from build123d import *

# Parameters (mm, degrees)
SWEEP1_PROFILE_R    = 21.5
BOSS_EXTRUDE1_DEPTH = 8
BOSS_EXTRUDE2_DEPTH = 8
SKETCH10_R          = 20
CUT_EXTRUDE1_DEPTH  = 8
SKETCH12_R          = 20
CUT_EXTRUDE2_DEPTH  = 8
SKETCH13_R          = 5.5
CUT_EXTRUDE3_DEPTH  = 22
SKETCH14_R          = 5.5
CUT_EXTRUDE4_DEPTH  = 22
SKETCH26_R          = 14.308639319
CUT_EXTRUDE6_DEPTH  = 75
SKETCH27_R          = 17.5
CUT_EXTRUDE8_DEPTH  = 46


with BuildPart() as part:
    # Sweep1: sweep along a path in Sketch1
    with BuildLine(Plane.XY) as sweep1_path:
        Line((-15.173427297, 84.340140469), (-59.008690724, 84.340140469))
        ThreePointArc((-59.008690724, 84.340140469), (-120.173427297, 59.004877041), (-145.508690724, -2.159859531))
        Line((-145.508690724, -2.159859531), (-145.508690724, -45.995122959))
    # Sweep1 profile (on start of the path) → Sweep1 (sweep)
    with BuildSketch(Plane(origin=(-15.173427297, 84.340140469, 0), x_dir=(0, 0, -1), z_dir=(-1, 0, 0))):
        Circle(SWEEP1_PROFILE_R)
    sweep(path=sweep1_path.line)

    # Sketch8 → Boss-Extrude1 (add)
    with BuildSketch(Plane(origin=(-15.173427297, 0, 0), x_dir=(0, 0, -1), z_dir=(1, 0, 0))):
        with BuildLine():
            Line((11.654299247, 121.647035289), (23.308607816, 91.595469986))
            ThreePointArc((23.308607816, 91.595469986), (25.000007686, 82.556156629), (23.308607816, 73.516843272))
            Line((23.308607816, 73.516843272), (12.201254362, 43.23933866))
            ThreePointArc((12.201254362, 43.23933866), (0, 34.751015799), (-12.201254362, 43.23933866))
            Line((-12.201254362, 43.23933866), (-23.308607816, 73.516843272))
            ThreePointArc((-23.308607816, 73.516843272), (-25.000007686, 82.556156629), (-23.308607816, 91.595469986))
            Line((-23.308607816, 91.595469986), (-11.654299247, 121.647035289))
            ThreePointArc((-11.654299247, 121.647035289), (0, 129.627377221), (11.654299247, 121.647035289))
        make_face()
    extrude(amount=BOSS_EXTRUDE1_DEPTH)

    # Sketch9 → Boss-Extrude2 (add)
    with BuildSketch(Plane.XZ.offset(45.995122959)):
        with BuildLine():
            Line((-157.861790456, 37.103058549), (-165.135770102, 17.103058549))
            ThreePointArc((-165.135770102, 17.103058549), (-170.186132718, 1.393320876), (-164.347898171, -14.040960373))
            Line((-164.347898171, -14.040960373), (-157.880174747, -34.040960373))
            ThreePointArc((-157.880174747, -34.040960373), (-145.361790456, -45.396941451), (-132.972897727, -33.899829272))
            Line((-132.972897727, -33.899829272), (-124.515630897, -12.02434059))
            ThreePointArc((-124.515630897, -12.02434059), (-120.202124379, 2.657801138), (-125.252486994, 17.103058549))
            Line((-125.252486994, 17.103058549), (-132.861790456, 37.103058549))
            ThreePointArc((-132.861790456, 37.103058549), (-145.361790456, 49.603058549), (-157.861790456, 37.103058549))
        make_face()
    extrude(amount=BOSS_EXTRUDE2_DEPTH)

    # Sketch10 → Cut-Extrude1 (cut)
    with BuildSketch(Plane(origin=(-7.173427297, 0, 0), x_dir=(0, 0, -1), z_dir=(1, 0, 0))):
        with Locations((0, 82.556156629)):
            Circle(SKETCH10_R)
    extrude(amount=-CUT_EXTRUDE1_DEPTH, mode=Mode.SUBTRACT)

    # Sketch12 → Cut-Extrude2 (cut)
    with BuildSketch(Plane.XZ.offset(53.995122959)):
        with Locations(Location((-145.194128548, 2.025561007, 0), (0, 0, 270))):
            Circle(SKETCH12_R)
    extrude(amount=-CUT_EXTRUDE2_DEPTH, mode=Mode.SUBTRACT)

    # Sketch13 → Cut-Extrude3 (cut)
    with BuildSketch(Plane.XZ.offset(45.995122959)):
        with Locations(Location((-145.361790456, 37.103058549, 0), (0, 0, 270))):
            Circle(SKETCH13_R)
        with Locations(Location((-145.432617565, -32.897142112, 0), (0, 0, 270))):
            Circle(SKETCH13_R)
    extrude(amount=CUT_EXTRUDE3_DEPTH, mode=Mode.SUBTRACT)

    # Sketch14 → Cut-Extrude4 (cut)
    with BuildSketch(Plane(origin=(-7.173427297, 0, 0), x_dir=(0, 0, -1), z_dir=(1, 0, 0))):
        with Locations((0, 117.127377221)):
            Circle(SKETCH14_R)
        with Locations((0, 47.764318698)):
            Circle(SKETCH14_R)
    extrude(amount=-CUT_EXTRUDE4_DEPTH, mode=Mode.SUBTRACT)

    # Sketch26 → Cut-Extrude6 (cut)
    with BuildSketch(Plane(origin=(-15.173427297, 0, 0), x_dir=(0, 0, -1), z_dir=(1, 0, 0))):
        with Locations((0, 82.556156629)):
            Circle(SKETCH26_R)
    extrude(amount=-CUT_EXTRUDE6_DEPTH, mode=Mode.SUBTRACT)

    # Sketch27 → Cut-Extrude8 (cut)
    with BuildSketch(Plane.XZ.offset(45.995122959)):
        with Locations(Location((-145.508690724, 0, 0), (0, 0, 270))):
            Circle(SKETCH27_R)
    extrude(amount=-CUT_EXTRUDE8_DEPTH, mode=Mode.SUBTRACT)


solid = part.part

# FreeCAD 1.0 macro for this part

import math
import FreeCAD as App
import Part
import Sketcher
from FreeCAD import Vector
Q = App.Units.Quantity

doc = App.newDocument("Part")
params = doc.addObject("Spreadsheet::Sheet", "Params")
for row, (alias, value) in enumerate([
    ("sketch1_diameter", "43 mm"),
    ("sketch2_radius", "86.5 mm"),
    ("sketch3_radius", "12.5 mm"),
    ("pad1_length", "8 mm"),
    ("sketch4_radius", "25 mm"),
    ("sketch4_radius2", "12.5 mm"),
    ("pad2_length", "8 mm"),
    ("sketch5_diameter", "40 mm"),
    ("pocket1_length", "8 mm"),
    ("sketch6_diameter", "40 mm"),
    ("pocket2_length", "8 mm"),
    ("sketch7_diameter", "11 mm"),
    ("pocket3_length", "22 mm"),
    ("sketch8_diameter", "11 mm"),
    ("pocket4_length", "22 mm"),
    ("pocket5_length", "75 mm"),
    ("sketch10_diameter", "35 mm"),
    ("pocket6_length", "46 mm"),
], start=1):
    params.set(f"A{row}", alias)
    params.set(f"B{row}", "=" + value)
    params.setAlias(f"B{row}", alias)

body = doc.addObject("PartDesign::Body", "Body")

# Sketch on YZ plane
sketch1 = doc.addObject("Sketcher::SketchObject", "Sketch")
body.addObject(sketch1)
sketch1.AttachmentSupport = (doc.YZ_Plane, [""])
sketch1.MapMode = "FlatFace"
sketch1.AttachmentOffset = App.Placement(Vector(0, 0, -15.173427), App.Rotation())
sketch1.addGeometry(Part.Circle(Vector(84, 0, 0), Vector(0, 0, 1), 22), False)
sketch1.addConstraint([
    Sketcher.Constraint("PointOnObject", 0, 3, -1),
    Sketcher.Constraint("Diameter", 0, Q("43 mm")),
    Sketcher.Constraint("DistanceX", -1, 1, 0, 3, Q("84.34014 mm")),
])
sketch1.setExpression("Constraints[1]", "Params.sketch1_diameter")

# Sketch on XY plane
sketch2 = doc.addObject("Sketcher::SketchObject", "Sketch001")
body.addObject(sketch2)
sketch2.AttachmentSupport = (doc.XY_Plane, [""])
sketch2.MapMode = "FlatFace"
sketch2.addGeometry([
    Part.LineSegment(Vector(-15, 84, 0), Vector(-59, 84, 0)),
    Part.ArcOfCircle(Part.Circle(Vector(-59, -2, 0), Vector(0, 0, 1), 86), math.radians(90), math.radians(180)),
    Part.LineSegment(Vector(-146, -2, 0), Vector(-146, -46, 0)),
], False)
sketch2.addConstraint([
    Sketcher.Constraint("Tangent", 0, 2, 1, 1),
    Sketcher.Constraint("Tangent", 1, 2, 2, 1),
    Sketcher.Constraint("Horizontal", 0),
    Sketcher.Constraint("Vertical", 2),
    Sketcher.Constraint("Equal", 0, 2),
    Sketcher.Constraint("Radius", 1, Q("86.5 mm")),
    Sketcher.Constraint("DistanceX", 0, 2, 0, 1, Q("43.835263 mm")),
    Sketcher.Constraint("DistanceX", 1, 3, -1, 1, Q("59.008691 mm")),
    Sketcher.Constraint("DistanceY", 1, 3, -1, 1, Q("2.15986 mm")),
])
sketch2.setExpression("Constraints[5]", "Params.sketch2_radius")
doc.recompute()

additivepipe = doc.addObject("PartDesign::AdditivePipe", "AdditivePipe")
body.addObject(additivepipe)
additivepipe.Profile = sketch1
additivepipe.Spine = (sketch2, ["Edge1", "Edge2", "Edge3"])

# Sketch on YZ plane
sketch3 = doc.addObject("Sketcher::SketchObject", "Sketch002")
body.addObject(sketch3)
sketch3.AttachmentSupport = (doc.YZ_Plane, [""])
sketch3.MapMode = "FlatFace"
sketch3.AttachmentOffset = App.Placement(Vector(0, 0, -15.173427), App.Rotation())
sketch3.addGeometry([
    Part.LineSegment(Vector(92, -23, 0), Vector(122, -12, 0)),  # 0
    Part.ArcOfCircle(Part.Circle(Vector(117, 0, 0), Vector(0, 0, 1), 12), math.radians(-69), math.radians(69)),  # 1
    Part.LineSegment(Vector(122, 12, 0), Vector(92, 23, 0)),  # 2
    Part.ArcOfCircle(Part.Circle(Vector(83, 0, 0), Vector(0, 0, 1), 25), math.radians(69), math.radians(111)),  # 3
    Part.LineSegment(Vector(74, 23, 0), Vector(43, 12, 0)),  # 4
    Part.ArcOfCircle(Part.Circle(Vector(48, 0, 0), Vector(0, 0, 1), 13), math.radians(110), math.radians(250)),  # 5
    Part.LineSegment(Vector(43, -12, 0), Vector(74, -23, 0)),  # 6
    Part.ArcOfCircle(Part.Circle(Vector(83, 0, 0), Vector(0, 0, 1), 25), math.radians(-111), math.radians(-69)),  # 7
], False)
sketch3.addConstraint([
    Sketcher.Constraint("Tangent", 0, 2, 1, 1),
    Sketcher.Constraint("Tangent", 1, 2, 2, 1),
    Sketcher.Constraint("Tangent", 2, 2, 3, 1),
    Sketcher.Constraint("Coincident", 3, 2, 4, 1),
    Sketcher.Constraint("Coincident", 4, 2, 5, 1),
    Sketcher.Constraint("Coincident", 5, 2, 6, 1),
    Sketcher.Constraint("Coincident", 6, 2, 7, 1),
    Sketcher.Constraint("Tangent", 7, 2, 0, 1),
    Sketcher.Constraint("Coincident", 7, 3, 3, 3),
    Sketcher.Constraint("Equal", 3, 7),
    Sketcher.Constraint("Symmetric", 0, 2, 1, 2, -1),
    Sketcher.Constraint("Symmetric", 4, 2, 5, 2, -1),
    Sketcher.Constraint("Horizontal", 2, 2, 3, 2),
    Sketcher.Constraint("Horizontal", 6, 2, 7, 2),
    Sketcher.Constraint("Radius", 1, Q("12.5 mm")),
    Sketcher.Constraint("Radius", 3, Q("25.000008 mm")),
    Sketcher.Constraint("Radius", 5, Q("13.013303 mm")),
    Sketcher.Constraint("DistanceY", 0, 2, -1, 1, Q("11.654299 mm")),
    Sketcher.Constraint("Distance", 4, Q("32.25059 mm")),
    Sketcher.Constraint("DistanceX", -1, 1, 5, 3, Q("47.764319 mm")),
    Sketcher.Constraint("DistanceX", -1, 1, 2, 2, Q("91.59547 mm")),
])
sketch3.setExpression("Constraints[14]", "Params.sketch3_radius")
pad1 = doc.addObject("PartDesign::Pad", "Pad")
body.addObject(pad1)
pad1.Profile = sketch3
pad1.setExpression("Length", "Params.pad1_length")

# Sketch on XZ plane
sketch4 = doc.addObject("Sketcher::SketchObject", "Sketch003")
body.addObject(sketch4)
sketch4.AttachmentSupport = (doc.XZ_Plane, [""])
sketch4.MapMode = "FlatFace"
sketch4.AttachmentOffset = App.Placement(Vector(0, 0, 45.995123), App.Rotation())
sketch4.addGeometry([
    Part.LineSegment(Vector(-158, 37, 0), Vector(-165, 17, 0)),  # 0
    Part.ArcOfCircle(Part.Circle(Vector(-145, 2, 0), Vector(0, 0, 1), 25), math.radians(143), math.radians(220)),  # 1
    Part.LineSegment(Vector(-164, -14, 0), Vector(-158, -34, 0)),  # 2
    Part.ArcOfCircle(Part.Circle(Vector(-145, -33, 0), Vector(0, 0, 1), 12), math.radians(-175), math.radians(-5)),  # 3
    Part.LineSegment(Vector(-133, -34, 0), Vector(-125, -12, 0)),  # 4
    Part.ArcOfCircle(Part.Circle(Vector(-145, 2, 0), Vector(0, 0, 1), 25), math.radians(-34), math.radians(37)),  # 5
    Part.LineSegment(Vector(-125, 17, 0), Vector(-133, 37, 0)),  # 6
    Part.ArcOfCircle(Part.Circle(Vector(-145, 37, 0), Vector(0, 0, 1), 12), math.radians(0), math.radians(180)),  # 7
], False)
sketch4.addConstraint([
    Sketcher.Constraint("Coincident", 0, 2, 1, 1),
    Sketcher.Constraint("Coincident", 1, 2, 2, 1),
    Sketcher.Constraint("Coincident", 2, 2, 3, 1),
    Sketcher.Constraint("Coincident", 3, 2, 4, 1),
    Sketcher.Constraint("Coincident", 4, 2, 5, 1),
    Sketcher.Constraint("Coincident", 5, 2, 6, 1),
    Sketcher.Constraint("Coincident", 6, 2, 7, 1),
    Sketcher.Constraint("Coincident", 7, 2, 0, 1),
    Sketcher.Constraint("Coincident", 5, 3, 1, 3),
    Sketcher.Constraint("Equal", 1, 5),
    Sketcher.Constraint("Equal", 3, 7),
    Sketcher.Constraint("Horizontal", 0, 2, 5, 2),
    Sketcher.Constraint("Horizontal", 7, 3, 6, 2),
    Sketcher.Constraint("Horizontal", 6, 2, 7, 2),
    Sketcher.Constraint("Radius", 1, Q("25 mm")),
    Sketcher.Constraint("Radius", 3, Q("12.5 mm")),
    Sketcher.Constraint("DistanceY", 0, 2, 7, 3, Q("20 mm")),
    Sketcher.Constraint("DistanceY", 2, 2, 1, 2, Q("20 mm")),
    Sketcher.Constraint("DistanceX", 1, 2, 3, 2, Q("31.375 mm")),
    Sketcher.Constraint("Distance", 0, Q("21.281701 mm")),
    Sketcher.Constraint("DistanceX", 1, 2, -1, 1, Q("164.347898 mm")),
    Sketcher.Constraint("DistanceY", 3, 3, 7, 3, Q("70.000201 mm")),
    Sketcher.Constraint("DistanceY", 4, 2, 1, 3, Q("14.049902 mm")),
    Sketcher.Constraint("DistanceY", 3, 3, 4, 2, Q("20.872802 mm")),
    Sketcher.Constraint("Distance", 4, Q("23.453408 mm")),
    Sketcher.Constraint("DistanceX", 1, 3, -1, 1, Q("145.194129 mm")),
    Sketcher.Constraint("DistanceY", -1, 1, 1, 3, Q("2.025561 mm")),
])
sketch4.setExpression("Constraints[14]", "Params.sketch4_radius")
sketch4.setExpression("Constraints[15]", "Params.sketch4_radius2")
pad2 = doc.addObject("PartDesign::Pad", "Pad001")
body.addObject(pad2)
pad2.Profile = sketch4
pad2.setExpression("Length", "Params.pad2_length")

# Sketch on YZ plane
sketch5 = doc.addObject("Sketcher::SketchObject", "Sketch004")
body.addObject(sketch5)
sketch5.AttachmentSupport = (doc.YZ_Plane, [""])
sketch5.MapMode = "FlatFace"
sketch5.AttachmentOffset = App.Placement(Vector(0, 0, -7.173427), App.Rotation())
sketch5.addGeometry(Part.Circle(Vector(83, 0, 0), Vector(0, 0, 1), 20), False)
sketch5.addConstraint([
    Sketcher.Constraint("PointOnObject", 0, 3, -1),
    Sketcher.Constraint("Diameter", 0, Q("40 mm")),
    Sketcher.Constraint("DistanceX", -1, 1, 0, 3, Q("82.556157 mm")),
])
sketch5.setExpression("Constraints[1]", "Params.sketch5_diameter")
pocket1 = doc.addObject("PartDesign::Pocket", "Pocket")
body.addObject(pocket1)
pocket1.Profile = sketch5
pocket1.setExpression("Length", "Params.pocket1_length")

# Sketch on XZ plane
sketch6 = doc.addObject("Sketcher::SketchObject", "Sketch005")
body.addObject(sketch6)
sketch6.AttachmentSupport = (doc.XZ_Plane, [""])
sketch6.MapMode = "FlatFace"
sketch6.AttachmentOffset = App.Placement(Vector(0, 0, 53.995123), App.Rotation())
sketch6.addGeometry(Part.Circle(Vector(-145, 2, 0), Vector(0, 0, 1), 20), False)
sketch6.addConstraint([
    Sketcher.Constraint("Diameter", 0, Q("40 mm")),
    Sketcher.Constraint("DistanceX", 0, 3, -1, 1, Q("145.194129 mm")),
    Sketcher.Constraint("DistanceY", -1, 1, 0, 3, Q("2.025561 mm")),
])
sketch6.setExpression("Constraints[0]", "Params.sketch6_diameter")
pocket2 = doc.addObject("PartDesign::Pocket", "Pocket001")
body.addObject(pocket2)
pocket2.Profile = sketch6
pocket2.setExpression("Length", "Params.pocket2_length")

# Sketch on XZ plane
sketch7 = doc.addObject("Sketcher::SketchObject", "Sketch006")
body.addObject(sketch7)
sketch7.AttachmentSupport = (doc.XZ_Plane, [""])
sketch7.MapMode = "FlatFace"
sketch7.AttachmentOffset = App.Placement(Vector(0, 0, 45.995123), App.Rotation())
sketch7.addGeometry([
    Part.Circle(Vector(-145, 37, 0), Vector(0, 0, 1), 6),
    Part.Circle(Vector(-145, -33, 0), Vector(0, 0, 1), 6),
], False)
sketch7.addConstraint([
    Sketcher.Constraint("Equal", 0, 1),
    Sketcher.Constraint("Diameter", 0, Q("11 mm")),
    Sketcher.Constraint("DistanceY", 1, 3, 0, 3, Q("70.000201 mm")),
    Sketcher.Constraint("DistanceX", 0, 3, -1, 1, Q("145.36179 mm")),
    Sketcher.Constraint("DistanceY", -1, 1, 0, 3, Q("37.103059 mm")),
    Sketcher.Constraint("DistanceX", 1, 3, -1, 1, Q("145.432618 mm")),
])
sketch7.setExpression("Constraints[1]", "Params.sketch7_diameter")
pocket3 = doc.addObject("PartDesign::Pocket", "Pocket002")
body.addObject(pocket3)
pocket3.Profile = sketch7
pocket3.setExpression("Length", "Params.pocket3_length")
pocket3.Reversed = True

# Sketch on YZ plane
sketch8 = doc.addObject("Sketcher::SketchObject", "Sketch007")
body.addObject(sketch8)
sketch8.AttachmentSupport = (doc.YZ_Plane, [""])
sketch8.MapMode = "FlatFace"
sketch8.AttachmentOffset = App.Placement(Vector(0, 0, -7.173427), App.Rotation())
sketch8.addGeometry([
    Part.Circle(Vector(117, 0, 0), Vector(0, 0, 1), 6),
    Part.Circle(Vector(48, 0, 0), Vector(0, 0, 1), 6),
], False)
sketch8.addConstraint([
    Sketcher.Constraint("Equal", 0, 1),
    Sketcher.Constraint("PointOnObject", 0, 3, -1),
    Sketcher.Constraint("PointOnObject", 1, 3, -1),
    Sketcher.Constraint("Diameter", 0, Q("11 mm")),
    Sketcher.Constraint("DistanceX", -1, 1, 1, 3, Q("47.764319 mm")),
    Sketcher.Constraint("DistanceX", 1, 3, 0, 3, Q("69.363059 mm")),
])
sketch8.setExpression("Constraints[3]", "Params.sketch8_diameter")
pocket4 = doc.addObject("PartDesign::Pocket", "Pocket003")
body.addObject(pocket4)
pocket4.Profile = sketch8
pocket4.setExpression("Length", "Params.pocket4_length")

# Sketch on YZ plane
sketch9 = doc.addObject("Sketcher::SketchObject", "Sketch008")
body.addObject(sketch9)
sketch9.AttachmentSupport = (doc.YZ_Plane, [""])
sketch9.MapMode = "FlatFace"
sketch9.AttachmentOffset = App.Placement(Vector(0, 0, -15.173427), App.Rotation())
sketch9.addGeometry(Part.Circle(Vector(83, 0, 0), Vector(0, 0, 1), 14), False)
sketch9.addConstraint([
    Sketcher.Constraint("PointOnObject", 0, 3, -1),
    Sketcher.Constraint("Diameter", 0, Q("28.617279 mm")),
    Sketcher.Constraint("DistanceX", -1, 1, 0, 3, Q("82.556157 mm")),
])
pocket5 = doc.addObject("PartDesign::Pocket", "Pocket004")
body.addObject(pocket5)
pocket5.Profile = sketch9
pocket5.setExpression("Length", "Params.pocket5_length")

# Sketch on XZ plane
sketch10 = doc.addObject("Sketcher::SketchObject", "Sketch009")
body.addObject(sketch10)
sketch10.AttachmentSupport = (doc.XZ_Plane, [""])
sketch10.MapMode = "FlatFace"
sketch10.AttachmentOffset = App.Placement(Vector(0, 0, 45.995123), App.Rotation())
sketch10.addGeometry(Part.Circle(Vector(-146, 0, 0), Vector(0, 0, 1), 18), False)
sketch10.addConstraint([
    Sketcher.Constraint("PointOnObject", 0, 3, -1),
    Sketcher.Constraint("Diameter", 0, Q("35 mm")),
    Sketcher.Constraint("DistanceX", 0, 3, -1, 1, Q("145.508691 mm")),
])
sketch10.setExpression("Constraints[1]", "Params.sketch10_diameter")
pocket6 = doc.addObject("PartDesign::Pocket", "Pocket005")
body.addObject(pocket6)
pocket6.Profile = sketch10
pocket6.setExpression("Length", "Params.pocket6_length")

doc.recompute()
